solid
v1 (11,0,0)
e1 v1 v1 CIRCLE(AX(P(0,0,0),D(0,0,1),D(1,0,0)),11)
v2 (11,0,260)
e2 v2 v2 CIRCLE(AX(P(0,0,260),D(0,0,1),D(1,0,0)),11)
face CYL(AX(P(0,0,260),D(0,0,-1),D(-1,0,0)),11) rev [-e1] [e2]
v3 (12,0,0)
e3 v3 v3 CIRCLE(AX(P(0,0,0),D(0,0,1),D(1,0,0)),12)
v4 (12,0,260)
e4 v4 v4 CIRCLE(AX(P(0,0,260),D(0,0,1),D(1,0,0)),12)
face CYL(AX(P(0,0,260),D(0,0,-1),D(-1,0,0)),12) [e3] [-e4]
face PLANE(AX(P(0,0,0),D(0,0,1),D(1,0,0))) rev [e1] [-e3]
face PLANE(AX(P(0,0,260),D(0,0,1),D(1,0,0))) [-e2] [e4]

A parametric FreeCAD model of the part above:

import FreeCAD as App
import Part
import Sketcher
from FreeCAD import Vector
Q = App.Units.Quantity

doc = App.newDocument("Part")
params = doc.addObject("Spreadsheet::Sheet", "Params")
for row, (alias, value) in enumerate([
    ("sketch1_diameter", "24 mm"),
    ("sketch1_diameter2", "22 mm"),
    ("pad1_length", "260 mm"),
], start=1):
    params.set(f"A{row}", alias)
    params.set(f"B{row}", "=" + value)
    params.setAlias(f"B{row}", alias)

body = doc.addObject("PartDesign::Body", "Body")

sketch1 = body.newObject("Sketcher::SketchObject", "Sketch")
sketch1.AttachmentSupport = (doc.getObject("XY_Plane"), [""])
sketch1.MapMode = "FlatFace"
sketch1.addGeometry(Part.Circle(Vector(0, 0, 0), Vector(0, 0, 1), 12), False)
sketch1.addGeometry(Part.Circle(Vector(0, 0, 0), Vector(0, 0, 1), 11), False)
sketch1.addConstraint(Sketcher.Constraint("Coincident", 0, 3, -1, 1))
sketch1.addConstraint(Sketcher.Constraint("Coincident", 1, 3, -1, 1))
sketch1.addConstraint(Sketcher.Constraint("Diameter", 0, Q("24 mm")))
sketch1.addConstraint(Sketcher.Constraint("Diameter", 1, Q("22 mm")))
sketch1.setExpression("Constraints[2]", "Params.sketch1_diameter")
sketch1.setExpression("Constraints[3]", "Params.sketch1_diameter2")
pad1 = body.newObject("PartDesign::Pad", "Pad")
pad1.Profile = sketch1
pad1.setExpression("Length", "Params.pad1_length")

doc.recompute()
